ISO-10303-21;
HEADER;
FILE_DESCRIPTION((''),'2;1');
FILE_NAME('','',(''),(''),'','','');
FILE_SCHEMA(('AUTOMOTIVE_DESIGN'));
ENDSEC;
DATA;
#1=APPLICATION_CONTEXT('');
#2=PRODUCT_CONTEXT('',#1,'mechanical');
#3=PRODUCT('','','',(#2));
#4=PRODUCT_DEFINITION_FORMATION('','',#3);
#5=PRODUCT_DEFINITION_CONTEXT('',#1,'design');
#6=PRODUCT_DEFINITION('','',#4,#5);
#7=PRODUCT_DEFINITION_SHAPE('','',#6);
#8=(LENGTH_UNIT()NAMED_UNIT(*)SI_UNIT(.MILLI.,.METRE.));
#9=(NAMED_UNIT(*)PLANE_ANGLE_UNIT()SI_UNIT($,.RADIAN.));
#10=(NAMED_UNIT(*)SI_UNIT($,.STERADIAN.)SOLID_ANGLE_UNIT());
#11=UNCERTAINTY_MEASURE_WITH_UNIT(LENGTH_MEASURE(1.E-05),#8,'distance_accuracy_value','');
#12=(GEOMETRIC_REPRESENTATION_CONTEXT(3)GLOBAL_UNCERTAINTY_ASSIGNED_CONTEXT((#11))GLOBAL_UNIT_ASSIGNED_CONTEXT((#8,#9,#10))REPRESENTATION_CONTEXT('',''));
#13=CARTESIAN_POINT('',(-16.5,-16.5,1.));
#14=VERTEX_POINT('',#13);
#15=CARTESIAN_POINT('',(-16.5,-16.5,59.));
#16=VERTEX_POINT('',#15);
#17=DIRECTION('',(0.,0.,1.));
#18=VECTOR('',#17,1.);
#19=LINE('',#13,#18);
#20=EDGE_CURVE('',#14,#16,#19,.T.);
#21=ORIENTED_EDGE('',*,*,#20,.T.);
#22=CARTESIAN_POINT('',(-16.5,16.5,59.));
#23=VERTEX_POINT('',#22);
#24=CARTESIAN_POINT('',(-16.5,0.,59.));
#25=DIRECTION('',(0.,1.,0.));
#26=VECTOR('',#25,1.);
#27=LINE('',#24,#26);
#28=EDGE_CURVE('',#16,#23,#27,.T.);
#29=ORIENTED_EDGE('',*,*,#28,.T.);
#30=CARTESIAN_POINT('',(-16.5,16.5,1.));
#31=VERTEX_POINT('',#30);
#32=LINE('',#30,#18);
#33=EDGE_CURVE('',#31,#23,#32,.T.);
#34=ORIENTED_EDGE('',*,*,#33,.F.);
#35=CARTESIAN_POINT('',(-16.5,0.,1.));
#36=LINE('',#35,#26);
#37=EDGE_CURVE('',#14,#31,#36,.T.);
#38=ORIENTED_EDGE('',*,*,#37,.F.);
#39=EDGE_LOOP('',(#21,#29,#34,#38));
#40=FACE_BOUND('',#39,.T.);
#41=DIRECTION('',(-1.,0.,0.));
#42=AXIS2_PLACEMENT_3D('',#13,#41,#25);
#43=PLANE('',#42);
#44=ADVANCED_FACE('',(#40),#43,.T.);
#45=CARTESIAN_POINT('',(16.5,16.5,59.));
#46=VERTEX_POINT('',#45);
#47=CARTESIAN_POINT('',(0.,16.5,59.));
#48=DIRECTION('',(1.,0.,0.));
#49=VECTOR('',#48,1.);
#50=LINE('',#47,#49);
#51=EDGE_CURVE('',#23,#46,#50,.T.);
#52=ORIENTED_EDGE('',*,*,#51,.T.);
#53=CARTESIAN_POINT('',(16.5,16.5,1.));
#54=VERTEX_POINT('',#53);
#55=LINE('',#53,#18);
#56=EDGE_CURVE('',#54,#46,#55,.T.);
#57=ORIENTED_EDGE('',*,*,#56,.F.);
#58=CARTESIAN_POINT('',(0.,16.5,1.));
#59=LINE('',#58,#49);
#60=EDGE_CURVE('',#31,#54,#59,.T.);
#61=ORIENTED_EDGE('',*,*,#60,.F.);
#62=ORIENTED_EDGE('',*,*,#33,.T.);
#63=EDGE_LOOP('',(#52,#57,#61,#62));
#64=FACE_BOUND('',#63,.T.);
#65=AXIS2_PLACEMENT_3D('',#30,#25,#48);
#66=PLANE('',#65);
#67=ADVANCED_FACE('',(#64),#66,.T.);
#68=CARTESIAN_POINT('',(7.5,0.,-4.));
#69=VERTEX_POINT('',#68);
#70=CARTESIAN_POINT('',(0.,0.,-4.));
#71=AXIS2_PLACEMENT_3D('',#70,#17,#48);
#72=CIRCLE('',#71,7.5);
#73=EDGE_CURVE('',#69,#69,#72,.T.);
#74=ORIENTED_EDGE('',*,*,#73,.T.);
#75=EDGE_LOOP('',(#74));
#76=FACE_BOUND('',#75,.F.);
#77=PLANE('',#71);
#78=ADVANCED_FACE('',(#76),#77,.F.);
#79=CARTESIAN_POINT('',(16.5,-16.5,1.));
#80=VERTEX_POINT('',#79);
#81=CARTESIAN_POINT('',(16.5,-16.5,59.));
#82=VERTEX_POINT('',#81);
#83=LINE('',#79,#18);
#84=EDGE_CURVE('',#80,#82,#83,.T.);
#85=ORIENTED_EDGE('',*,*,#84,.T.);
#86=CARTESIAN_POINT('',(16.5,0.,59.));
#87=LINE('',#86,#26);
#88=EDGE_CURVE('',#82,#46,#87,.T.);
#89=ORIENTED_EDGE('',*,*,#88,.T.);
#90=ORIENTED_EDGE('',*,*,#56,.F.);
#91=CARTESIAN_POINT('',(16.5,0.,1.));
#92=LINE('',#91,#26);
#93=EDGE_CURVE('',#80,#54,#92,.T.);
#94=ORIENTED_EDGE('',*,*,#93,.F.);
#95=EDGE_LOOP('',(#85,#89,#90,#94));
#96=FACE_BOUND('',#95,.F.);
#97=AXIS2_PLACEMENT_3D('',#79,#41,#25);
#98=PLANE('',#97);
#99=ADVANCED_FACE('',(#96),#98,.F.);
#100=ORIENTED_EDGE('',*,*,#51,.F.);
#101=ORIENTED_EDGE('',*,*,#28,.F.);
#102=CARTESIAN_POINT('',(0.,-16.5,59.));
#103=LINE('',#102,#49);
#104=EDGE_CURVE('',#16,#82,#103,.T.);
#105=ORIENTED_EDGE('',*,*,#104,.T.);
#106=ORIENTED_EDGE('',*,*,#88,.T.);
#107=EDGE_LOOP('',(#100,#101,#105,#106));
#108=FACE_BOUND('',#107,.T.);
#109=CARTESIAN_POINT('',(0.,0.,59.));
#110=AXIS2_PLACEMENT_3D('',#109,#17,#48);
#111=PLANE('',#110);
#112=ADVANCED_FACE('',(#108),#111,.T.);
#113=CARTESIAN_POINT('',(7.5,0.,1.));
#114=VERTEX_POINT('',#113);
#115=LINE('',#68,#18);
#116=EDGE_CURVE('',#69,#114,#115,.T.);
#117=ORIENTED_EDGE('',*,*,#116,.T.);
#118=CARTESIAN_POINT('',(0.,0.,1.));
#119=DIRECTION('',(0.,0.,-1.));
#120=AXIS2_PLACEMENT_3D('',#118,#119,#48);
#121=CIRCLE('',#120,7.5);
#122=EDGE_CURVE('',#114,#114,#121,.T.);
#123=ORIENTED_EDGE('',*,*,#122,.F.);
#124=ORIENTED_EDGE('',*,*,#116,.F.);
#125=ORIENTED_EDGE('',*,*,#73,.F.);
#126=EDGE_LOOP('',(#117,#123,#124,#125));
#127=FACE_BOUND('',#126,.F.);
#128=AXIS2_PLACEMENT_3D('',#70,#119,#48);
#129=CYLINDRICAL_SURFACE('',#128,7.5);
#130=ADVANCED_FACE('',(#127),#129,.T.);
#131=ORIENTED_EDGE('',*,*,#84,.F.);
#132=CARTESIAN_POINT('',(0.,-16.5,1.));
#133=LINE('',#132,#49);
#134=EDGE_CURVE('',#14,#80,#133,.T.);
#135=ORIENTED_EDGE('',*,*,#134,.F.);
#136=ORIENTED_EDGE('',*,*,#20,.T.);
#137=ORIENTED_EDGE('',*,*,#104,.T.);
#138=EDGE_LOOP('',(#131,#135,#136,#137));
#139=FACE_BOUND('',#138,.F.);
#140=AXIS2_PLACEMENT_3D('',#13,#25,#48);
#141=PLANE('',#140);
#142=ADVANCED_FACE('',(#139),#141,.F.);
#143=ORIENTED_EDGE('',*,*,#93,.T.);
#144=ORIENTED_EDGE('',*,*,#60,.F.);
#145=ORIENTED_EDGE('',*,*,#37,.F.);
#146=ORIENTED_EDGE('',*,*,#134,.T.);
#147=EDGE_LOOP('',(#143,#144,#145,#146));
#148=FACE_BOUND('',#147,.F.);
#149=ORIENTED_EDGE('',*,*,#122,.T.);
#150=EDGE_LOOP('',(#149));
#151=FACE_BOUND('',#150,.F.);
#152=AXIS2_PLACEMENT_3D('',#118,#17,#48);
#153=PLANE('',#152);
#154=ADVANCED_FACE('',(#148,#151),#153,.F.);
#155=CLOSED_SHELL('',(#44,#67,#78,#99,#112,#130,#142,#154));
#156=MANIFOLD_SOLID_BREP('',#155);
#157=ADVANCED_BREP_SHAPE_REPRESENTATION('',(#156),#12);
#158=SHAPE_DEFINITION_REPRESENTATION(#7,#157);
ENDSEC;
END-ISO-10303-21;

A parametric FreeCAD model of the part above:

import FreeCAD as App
import Part
import Sketcher
from FreeCAD import Vector

doc = App.newDocument("Part")
body = doc.addObject("PartDesign::Body", "Body")

sketch1 = doc.addObject("Sketcher::SketchObject", "Sketch")
body.addObject(sketch1)
sketch1.AttachmentSupport = (doc.XY_Plane, [""])
sketch1.MapMode = "FlatFace"
sketch1.AttachmentOffset = App.Placement(Vector(0, 0, 3), App.Rotation())
sketch1.addGeometry([
    Part.LineSegment(Vector(-16, 16, 0), Vector(-16, -16, 0)),
    Part.LineSegment(Vector(-16, -16, 0), Vector(16, -16, 0)),
    Part.LineSegment(Vector(16, -16, 0), Vector(16, 16, 0)),
    Part.LineSegment(Vector(16, 16, 0), Vector(-16, 16, 0)),
], False)
sketch1.addConstraint([
    Sketcher.Constraint("Coincident", 0, 2, 1, 1),
    Sketcher.Constraint("Coincident", 1, 2, 2, 1),
    Sketcher.Constraint("Coincident", 2, 2, 3, 1),
    Sketcher.Constraint("Coincident", 3, 2, 0, 1),
    Sketcher.Constraint("Vertical", 0),
    Sketcher.Constraint("Horizontal", 1),
    Sketcher.Constraint("Vertical", 2),
    Sketcher.Constraint("Horizontal", 3),
    Sketcher.Constraint("Symmetric", 0, 2, 2, 2, -1, 1),
    Sketcher.Constraint("Equal", 3, 0),
    Sketcher.Constraint("DistanceX", 1, 1, 1, 2, 33.0),
])
pad1 = doc.addObject("PartDesign::Pad", "Pad")
body.addObject(pad1)
pad1.Profile = sketch1
pad1.Length = 58
body2 = doc.addObject("PartDesign::Body", "Body001")

sketch2 = doc.addObject("Sketcher::SketchObject", "Sketch001")
body2.addObject(sketch2)
sketch2.AttachmentSupport = (doc.getObject("XY_Plane001"), [""])
sketch2.MapMode = "FlatFace"
sketch2.AttachmentOffset = App.Placement(Vector(0, 0, -2), App.Rotation())
sketch2.addGeometry(Part.Circle(Vector(0, 0, 0), Vector(0, 0, 1), 8), False)
sketch2.addConstraint([
    Sketcher.Constraint("Coincident", 0, 3, -1, 1),
    Sketcher.Constraint("Diameter", 0, 15.0),
])
pad2 = doc.addObject("PartDesign::Pad", "Pad001")
body2.addObject(pad2)
pad2.Profile = sketch2
pad2.Length = 10
doc.recompute()

boolean = doc.addObject("PartDesign::Boolean", "Boolean")
body2.addObject(boolean)
boolean.Type = "Fuse"
boolean.addObjects([body])
body3 = doc.addObject("PartDesign::Body", "Body002")
doc.recompute()

body2.Placement = App.Placement(Vector(0, 0, -2), App.Rotation(Vector(0, 0, 1), 0))
boolean2 = doc.addObject("PartDesign::Boolean", "Boolean001")
body3.addObject(boolean2)
boolean2.Type = "Fuse"
boolean2.addObjects([body2])

doc.recompute()
